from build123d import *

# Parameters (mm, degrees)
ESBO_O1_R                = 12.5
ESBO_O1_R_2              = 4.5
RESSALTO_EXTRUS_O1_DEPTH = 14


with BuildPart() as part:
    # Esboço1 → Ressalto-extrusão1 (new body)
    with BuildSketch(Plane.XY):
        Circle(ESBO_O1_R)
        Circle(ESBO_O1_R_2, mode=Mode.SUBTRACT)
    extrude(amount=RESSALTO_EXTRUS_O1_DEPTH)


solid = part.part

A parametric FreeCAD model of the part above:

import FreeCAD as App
import Part
import Sketcher
Q = App.Units.Quantity

doc = App.newDocument("Part")
body = doc.addObject("PartDesign::Body", "Body")

# Sketch on XY plane
sketch1 = body.newObject("Sketcher::SketchObject", "Sketch")
sketch1.AttachmentSupport = (doc.getObject("XY_Plane"), [""])
sketch1.MapMode = "FlatFace"
sketch1.addGeometry([
    Part.Circle(App.Vector(0, 0, 0), App.Vector(0, 0, 1), 12.5),
    Part.Circle(App.Vector(0, 0, 0), App.Vector(0, 0, 1), 4.5),
], False)
sketch1.addConstraint([
    Sketcher.Constraint("Coincident", 0, 3, -1, 1),
    Sketcher.Constraint("Coincident", 1, 3, -1, 1),
    Sketcher.Constraint("Diameter", 0, Q("25 mm")),
    Sketcher.Constraint("Diameter", 1, Q("9 mm")),
])
pad1 = body.newObject("PartDesign::Pad", "Pad")
pad1.Profile = sketch1
pad1.Length = 14

doc.recompute()
